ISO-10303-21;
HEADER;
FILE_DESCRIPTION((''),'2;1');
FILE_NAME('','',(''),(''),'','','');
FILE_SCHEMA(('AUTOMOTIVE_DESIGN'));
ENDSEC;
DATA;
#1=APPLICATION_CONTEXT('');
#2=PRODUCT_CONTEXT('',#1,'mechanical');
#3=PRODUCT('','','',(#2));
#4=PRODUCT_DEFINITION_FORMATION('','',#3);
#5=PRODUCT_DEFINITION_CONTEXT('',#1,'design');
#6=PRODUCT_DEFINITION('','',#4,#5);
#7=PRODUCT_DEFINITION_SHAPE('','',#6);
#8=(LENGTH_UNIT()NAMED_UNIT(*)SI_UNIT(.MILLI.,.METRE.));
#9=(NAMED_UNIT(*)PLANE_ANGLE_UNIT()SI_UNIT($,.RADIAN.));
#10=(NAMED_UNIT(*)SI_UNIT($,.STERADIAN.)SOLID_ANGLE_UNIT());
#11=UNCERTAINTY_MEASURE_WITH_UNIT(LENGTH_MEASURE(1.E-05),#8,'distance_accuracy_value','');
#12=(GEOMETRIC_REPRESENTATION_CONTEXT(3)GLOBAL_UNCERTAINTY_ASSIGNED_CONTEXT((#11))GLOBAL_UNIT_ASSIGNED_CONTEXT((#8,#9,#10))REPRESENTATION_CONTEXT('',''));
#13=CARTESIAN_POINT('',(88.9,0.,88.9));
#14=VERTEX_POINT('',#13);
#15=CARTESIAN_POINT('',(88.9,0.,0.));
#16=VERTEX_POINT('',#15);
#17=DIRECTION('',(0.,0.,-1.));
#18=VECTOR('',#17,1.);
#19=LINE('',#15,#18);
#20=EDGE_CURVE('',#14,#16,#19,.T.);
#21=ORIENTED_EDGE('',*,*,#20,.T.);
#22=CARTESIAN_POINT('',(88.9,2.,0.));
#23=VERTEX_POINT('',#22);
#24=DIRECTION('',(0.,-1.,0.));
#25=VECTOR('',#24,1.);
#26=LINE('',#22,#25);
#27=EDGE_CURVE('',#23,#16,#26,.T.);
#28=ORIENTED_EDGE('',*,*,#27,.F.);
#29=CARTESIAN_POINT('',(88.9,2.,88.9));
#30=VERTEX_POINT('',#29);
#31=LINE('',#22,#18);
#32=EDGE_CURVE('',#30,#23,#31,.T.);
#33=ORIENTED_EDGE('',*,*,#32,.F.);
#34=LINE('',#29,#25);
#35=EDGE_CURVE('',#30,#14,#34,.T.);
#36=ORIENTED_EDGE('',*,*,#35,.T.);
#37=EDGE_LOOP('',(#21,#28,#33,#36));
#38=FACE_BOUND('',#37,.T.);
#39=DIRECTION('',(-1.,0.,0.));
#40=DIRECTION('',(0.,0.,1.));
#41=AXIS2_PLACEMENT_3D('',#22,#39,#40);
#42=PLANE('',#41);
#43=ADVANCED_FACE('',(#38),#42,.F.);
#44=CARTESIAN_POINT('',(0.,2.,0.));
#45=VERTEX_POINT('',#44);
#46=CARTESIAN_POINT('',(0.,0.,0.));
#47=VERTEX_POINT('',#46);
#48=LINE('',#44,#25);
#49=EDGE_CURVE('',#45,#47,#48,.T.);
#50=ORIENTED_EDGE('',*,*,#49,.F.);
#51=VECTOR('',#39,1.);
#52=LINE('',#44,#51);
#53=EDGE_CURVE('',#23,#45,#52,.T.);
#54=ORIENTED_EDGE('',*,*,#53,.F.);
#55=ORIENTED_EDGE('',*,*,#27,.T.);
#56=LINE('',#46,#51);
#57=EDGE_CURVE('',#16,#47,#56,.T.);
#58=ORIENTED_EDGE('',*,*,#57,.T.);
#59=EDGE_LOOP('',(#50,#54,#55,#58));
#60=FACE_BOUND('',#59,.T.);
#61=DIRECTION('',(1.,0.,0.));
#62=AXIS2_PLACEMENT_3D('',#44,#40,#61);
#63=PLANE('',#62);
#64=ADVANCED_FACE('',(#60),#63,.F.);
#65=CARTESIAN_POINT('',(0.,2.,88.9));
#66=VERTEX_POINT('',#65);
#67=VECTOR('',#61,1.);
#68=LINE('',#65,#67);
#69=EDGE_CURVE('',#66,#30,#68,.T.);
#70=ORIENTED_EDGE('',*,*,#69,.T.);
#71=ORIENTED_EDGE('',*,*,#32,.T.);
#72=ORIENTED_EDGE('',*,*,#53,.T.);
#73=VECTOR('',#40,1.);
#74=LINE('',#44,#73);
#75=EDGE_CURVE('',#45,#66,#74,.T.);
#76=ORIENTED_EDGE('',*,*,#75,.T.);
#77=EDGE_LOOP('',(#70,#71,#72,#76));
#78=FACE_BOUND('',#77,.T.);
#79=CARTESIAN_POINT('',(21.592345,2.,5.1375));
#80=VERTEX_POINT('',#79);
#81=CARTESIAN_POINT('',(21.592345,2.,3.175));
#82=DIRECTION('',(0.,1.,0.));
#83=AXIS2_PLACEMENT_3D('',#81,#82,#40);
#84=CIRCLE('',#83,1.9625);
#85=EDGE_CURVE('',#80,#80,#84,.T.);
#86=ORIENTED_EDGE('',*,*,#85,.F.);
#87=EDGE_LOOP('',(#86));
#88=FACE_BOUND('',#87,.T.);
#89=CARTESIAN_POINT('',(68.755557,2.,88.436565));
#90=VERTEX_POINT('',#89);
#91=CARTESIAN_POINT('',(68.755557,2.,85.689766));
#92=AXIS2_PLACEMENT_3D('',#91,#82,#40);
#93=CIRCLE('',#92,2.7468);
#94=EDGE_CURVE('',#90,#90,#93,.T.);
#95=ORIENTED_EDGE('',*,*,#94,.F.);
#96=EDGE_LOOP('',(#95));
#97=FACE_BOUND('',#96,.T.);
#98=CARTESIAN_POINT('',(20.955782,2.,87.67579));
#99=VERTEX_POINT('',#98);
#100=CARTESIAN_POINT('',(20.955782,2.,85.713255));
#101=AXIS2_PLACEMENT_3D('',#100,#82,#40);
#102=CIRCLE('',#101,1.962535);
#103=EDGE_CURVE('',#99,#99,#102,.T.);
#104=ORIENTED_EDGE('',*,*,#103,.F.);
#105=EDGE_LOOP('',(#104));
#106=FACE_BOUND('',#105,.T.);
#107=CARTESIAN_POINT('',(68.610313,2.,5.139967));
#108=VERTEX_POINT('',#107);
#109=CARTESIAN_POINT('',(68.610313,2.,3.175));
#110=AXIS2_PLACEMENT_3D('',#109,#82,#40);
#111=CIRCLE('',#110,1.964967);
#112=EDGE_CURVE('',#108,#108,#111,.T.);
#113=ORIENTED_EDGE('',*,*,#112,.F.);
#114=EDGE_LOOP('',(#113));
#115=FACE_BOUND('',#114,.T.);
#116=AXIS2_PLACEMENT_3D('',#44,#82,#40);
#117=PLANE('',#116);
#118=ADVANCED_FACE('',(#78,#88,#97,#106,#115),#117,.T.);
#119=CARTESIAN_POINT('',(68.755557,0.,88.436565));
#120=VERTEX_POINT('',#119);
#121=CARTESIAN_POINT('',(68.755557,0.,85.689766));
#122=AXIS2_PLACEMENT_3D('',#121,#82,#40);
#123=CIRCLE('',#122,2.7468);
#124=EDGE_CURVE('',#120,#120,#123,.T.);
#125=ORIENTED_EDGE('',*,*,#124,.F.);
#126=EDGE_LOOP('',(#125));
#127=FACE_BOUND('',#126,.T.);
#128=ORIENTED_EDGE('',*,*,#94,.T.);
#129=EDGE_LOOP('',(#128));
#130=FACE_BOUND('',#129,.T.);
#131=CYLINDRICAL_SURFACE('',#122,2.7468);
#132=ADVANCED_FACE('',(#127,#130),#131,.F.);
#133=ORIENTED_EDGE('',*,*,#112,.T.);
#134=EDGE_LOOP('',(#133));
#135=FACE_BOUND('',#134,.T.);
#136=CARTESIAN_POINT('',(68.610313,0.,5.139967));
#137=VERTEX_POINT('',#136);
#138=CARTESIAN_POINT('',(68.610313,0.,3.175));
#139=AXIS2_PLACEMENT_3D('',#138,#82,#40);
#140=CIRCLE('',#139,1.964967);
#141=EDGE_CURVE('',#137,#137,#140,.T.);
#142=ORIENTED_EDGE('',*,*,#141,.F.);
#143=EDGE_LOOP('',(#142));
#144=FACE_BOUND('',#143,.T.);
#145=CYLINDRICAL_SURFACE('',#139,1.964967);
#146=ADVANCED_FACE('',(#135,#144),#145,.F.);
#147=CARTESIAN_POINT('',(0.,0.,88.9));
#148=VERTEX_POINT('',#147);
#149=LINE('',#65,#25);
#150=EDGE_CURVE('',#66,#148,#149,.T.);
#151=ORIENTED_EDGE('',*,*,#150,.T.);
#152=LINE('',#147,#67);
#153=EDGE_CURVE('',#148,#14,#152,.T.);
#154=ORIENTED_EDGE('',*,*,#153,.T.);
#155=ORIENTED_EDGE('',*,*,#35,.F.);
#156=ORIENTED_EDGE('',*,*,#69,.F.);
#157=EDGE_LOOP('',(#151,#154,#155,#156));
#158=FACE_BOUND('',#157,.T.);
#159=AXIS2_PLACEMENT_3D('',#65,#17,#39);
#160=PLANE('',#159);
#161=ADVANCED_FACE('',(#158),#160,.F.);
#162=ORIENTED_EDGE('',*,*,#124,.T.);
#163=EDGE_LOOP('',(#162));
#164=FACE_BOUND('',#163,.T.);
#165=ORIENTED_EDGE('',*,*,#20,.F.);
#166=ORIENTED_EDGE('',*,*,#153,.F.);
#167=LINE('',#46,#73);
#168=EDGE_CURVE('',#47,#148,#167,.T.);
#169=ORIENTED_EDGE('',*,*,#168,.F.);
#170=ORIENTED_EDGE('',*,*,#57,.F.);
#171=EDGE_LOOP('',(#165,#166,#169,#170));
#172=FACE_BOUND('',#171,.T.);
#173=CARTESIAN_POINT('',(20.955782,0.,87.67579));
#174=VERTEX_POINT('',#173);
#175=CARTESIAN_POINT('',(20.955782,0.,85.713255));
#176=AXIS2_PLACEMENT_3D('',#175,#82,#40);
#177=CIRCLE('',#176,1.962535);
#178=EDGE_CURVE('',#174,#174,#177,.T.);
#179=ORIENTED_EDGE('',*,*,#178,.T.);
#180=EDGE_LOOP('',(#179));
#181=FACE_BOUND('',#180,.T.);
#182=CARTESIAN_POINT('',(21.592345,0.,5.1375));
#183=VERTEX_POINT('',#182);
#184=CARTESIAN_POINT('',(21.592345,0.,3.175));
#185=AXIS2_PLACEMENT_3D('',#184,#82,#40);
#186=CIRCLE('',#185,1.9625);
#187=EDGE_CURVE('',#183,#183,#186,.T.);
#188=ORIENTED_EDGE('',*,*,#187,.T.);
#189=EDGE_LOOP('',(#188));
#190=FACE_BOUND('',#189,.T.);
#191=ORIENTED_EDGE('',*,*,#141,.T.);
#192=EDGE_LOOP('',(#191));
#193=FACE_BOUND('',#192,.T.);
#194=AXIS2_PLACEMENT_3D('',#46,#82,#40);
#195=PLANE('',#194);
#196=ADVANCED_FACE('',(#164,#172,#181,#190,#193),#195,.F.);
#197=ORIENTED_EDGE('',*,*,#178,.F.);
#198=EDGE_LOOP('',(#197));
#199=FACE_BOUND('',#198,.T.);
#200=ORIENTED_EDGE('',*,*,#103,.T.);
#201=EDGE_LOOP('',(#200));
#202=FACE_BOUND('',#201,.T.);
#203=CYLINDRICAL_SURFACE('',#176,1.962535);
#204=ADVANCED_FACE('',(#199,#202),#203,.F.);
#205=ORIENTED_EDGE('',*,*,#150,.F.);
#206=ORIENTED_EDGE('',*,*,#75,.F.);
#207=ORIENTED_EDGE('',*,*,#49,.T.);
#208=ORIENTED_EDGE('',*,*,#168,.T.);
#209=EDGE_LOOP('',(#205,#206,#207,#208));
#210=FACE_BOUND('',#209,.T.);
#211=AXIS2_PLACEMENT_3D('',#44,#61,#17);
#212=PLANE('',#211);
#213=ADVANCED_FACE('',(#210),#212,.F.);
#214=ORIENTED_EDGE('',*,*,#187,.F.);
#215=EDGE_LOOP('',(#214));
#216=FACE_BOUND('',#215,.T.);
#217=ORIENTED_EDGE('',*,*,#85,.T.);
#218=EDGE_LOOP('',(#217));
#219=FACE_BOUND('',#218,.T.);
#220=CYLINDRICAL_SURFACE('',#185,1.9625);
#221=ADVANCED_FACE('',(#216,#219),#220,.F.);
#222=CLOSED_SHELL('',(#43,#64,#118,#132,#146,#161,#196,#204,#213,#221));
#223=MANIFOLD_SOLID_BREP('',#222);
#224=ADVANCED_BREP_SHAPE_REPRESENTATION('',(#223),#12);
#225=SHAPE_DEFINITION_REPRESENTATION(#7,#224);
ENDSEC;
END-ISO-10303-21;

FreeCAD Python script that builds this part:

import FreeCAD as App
import Part
import Sketcher
Q = App.Units.Quantity

doc = App.newDocument("Part")
body = doc.addObject("PartDesign::Body", "Body")

# Sketch on XZ plane
sketch1 = doc.addObject("Sketcher::SketchObject", "Sketch")
body.addObject(sketch1)
sketch1.AttachmentSupport = (doc.XZ_Plane, [""])
sketch1.MapMode = "FlatFace"
sketch1.addGeometry([
    Part.LineSegment(App.Vector(0, 0, 0), App.Vector(0, 89, 0)),
    Part.LineSegment(App.Vector(0, 89, 0), App.Vector(89, 89, 0)),
    Part.LineSegment(App.Vector(89, 89, 0), App.Vector(89, 0, 0)),
    Part.LineSegment(App.Vector(89, 0, 0), App.Vector(0, 0, 0)),
], False)
sketch1.addConstraint([
    Sketcher.Constraint("Coincident", 0, 2, 1, 1),
    Sketcher.Constraint("Coincident", 1, 2, 2, 1),
    Sketcher.Constraint("Coincident", 2, 2, 3, 1),
    Sketcher.Constraint("Coincident", 3, 2, 0, 1),
    Sketcher.Constraint("Vertical", 0),
    Sketcher.Constraint("Horizontal", 1),
    Sketcher.Constraint("Vertical", 2),
    Sketcher.Constraint("Horizontal", 3),
    Sketcher.Constraint("Coincident", 3, 2, -1, 1),
    Sketcher.Constraint("Equal", 3, 0),
    Sketcher.Constraint("DistanceX", 1, 1, 1, 2, Q("88.9 mm")),
])
pad1 = doc.addObject("PartDesign::Pad", "Pad")
body.addObject(pad1)
pad1.Profile = sketch1
pad1.Length = 2
pad1.Reversed = True

# Sketch on XZ plane
sketch2 = doc.addObject("Sketcher::SketchObject", "Sketch001")
body.addObject(sketch2)
sketch2.AttachmentSupport = (doc.XZ_Plane, [""])
sketch2.MapMode = "FlatFace"
sketch2.AttachmentOffset = App.Placement(App.Vector(0, 0, -2), App.Rotation())
sketch2.addGeometry([
    Part.Circle(App.Vector(21.6, 3.2, 0), App.Vector(0, 0, 1), 2),
    Part.Circle(App.Vector(68.6, 3.2, 0), App.Vector(0, 0, 1), 2),
    Part.Circle(App.Vector(68.8, 85.7, 0), App.Vector(0, 0, 1), 2.7),
    Part.Circle(App.Vector(21, 85.7, 0), App.Vector(0, 0, 1), 2),
], False)
sketch2.addConstraint([
    Sketcher.Constraint("Horizontal", 0, 3, 1, 3),
    Sketcher.Constraint("Diameter", 0, Q("3.925 mm")),
    Sketcher.Constraint("Diameter", 2, Q("5.493599 mm")),
    Sketcher.Constraint("Diameter", 3, Q("3.92507 mm")),
    Sketcher.Constraint("Diameter", 1, Q("3.929934 mm")),
    Sketcher.Constraint("DistanceY", -1, 1, 0, 3, Q("3.175 mm")),
    Sketcher.Constraint("DistanceX", -1, 1, 3, 3, Q("20.955782 mm")),
    Sketcher.Constraint("DistanceX", 0, 3, 1, 3, Q("47.017968 mm")),
    Sketcher.Constraint("DistanceY", 2, 3, 3, 3, Q("0.023489 mm")),
    Sketcher.Constraint("DistanceX", 3, 3, 1, 3, Q("47.654531 mm")),
    Sketcher.Constraint("DistanceX", -1, 1, 2, 3, Q("68.755557 mm")),
    Sketcher.Constraint("DistanceY", -1, 1, 2, 3, Q("85.689766 mm")),
])
pocket1 = doc.addObject("PartDesign::Pocket", "Pocket")
body.addObject(pocket1)
pocket1.Profile = sketch2
pocket1.Type = "ThroughAll"
pocket1.Reversed = True

doc.recompute()
